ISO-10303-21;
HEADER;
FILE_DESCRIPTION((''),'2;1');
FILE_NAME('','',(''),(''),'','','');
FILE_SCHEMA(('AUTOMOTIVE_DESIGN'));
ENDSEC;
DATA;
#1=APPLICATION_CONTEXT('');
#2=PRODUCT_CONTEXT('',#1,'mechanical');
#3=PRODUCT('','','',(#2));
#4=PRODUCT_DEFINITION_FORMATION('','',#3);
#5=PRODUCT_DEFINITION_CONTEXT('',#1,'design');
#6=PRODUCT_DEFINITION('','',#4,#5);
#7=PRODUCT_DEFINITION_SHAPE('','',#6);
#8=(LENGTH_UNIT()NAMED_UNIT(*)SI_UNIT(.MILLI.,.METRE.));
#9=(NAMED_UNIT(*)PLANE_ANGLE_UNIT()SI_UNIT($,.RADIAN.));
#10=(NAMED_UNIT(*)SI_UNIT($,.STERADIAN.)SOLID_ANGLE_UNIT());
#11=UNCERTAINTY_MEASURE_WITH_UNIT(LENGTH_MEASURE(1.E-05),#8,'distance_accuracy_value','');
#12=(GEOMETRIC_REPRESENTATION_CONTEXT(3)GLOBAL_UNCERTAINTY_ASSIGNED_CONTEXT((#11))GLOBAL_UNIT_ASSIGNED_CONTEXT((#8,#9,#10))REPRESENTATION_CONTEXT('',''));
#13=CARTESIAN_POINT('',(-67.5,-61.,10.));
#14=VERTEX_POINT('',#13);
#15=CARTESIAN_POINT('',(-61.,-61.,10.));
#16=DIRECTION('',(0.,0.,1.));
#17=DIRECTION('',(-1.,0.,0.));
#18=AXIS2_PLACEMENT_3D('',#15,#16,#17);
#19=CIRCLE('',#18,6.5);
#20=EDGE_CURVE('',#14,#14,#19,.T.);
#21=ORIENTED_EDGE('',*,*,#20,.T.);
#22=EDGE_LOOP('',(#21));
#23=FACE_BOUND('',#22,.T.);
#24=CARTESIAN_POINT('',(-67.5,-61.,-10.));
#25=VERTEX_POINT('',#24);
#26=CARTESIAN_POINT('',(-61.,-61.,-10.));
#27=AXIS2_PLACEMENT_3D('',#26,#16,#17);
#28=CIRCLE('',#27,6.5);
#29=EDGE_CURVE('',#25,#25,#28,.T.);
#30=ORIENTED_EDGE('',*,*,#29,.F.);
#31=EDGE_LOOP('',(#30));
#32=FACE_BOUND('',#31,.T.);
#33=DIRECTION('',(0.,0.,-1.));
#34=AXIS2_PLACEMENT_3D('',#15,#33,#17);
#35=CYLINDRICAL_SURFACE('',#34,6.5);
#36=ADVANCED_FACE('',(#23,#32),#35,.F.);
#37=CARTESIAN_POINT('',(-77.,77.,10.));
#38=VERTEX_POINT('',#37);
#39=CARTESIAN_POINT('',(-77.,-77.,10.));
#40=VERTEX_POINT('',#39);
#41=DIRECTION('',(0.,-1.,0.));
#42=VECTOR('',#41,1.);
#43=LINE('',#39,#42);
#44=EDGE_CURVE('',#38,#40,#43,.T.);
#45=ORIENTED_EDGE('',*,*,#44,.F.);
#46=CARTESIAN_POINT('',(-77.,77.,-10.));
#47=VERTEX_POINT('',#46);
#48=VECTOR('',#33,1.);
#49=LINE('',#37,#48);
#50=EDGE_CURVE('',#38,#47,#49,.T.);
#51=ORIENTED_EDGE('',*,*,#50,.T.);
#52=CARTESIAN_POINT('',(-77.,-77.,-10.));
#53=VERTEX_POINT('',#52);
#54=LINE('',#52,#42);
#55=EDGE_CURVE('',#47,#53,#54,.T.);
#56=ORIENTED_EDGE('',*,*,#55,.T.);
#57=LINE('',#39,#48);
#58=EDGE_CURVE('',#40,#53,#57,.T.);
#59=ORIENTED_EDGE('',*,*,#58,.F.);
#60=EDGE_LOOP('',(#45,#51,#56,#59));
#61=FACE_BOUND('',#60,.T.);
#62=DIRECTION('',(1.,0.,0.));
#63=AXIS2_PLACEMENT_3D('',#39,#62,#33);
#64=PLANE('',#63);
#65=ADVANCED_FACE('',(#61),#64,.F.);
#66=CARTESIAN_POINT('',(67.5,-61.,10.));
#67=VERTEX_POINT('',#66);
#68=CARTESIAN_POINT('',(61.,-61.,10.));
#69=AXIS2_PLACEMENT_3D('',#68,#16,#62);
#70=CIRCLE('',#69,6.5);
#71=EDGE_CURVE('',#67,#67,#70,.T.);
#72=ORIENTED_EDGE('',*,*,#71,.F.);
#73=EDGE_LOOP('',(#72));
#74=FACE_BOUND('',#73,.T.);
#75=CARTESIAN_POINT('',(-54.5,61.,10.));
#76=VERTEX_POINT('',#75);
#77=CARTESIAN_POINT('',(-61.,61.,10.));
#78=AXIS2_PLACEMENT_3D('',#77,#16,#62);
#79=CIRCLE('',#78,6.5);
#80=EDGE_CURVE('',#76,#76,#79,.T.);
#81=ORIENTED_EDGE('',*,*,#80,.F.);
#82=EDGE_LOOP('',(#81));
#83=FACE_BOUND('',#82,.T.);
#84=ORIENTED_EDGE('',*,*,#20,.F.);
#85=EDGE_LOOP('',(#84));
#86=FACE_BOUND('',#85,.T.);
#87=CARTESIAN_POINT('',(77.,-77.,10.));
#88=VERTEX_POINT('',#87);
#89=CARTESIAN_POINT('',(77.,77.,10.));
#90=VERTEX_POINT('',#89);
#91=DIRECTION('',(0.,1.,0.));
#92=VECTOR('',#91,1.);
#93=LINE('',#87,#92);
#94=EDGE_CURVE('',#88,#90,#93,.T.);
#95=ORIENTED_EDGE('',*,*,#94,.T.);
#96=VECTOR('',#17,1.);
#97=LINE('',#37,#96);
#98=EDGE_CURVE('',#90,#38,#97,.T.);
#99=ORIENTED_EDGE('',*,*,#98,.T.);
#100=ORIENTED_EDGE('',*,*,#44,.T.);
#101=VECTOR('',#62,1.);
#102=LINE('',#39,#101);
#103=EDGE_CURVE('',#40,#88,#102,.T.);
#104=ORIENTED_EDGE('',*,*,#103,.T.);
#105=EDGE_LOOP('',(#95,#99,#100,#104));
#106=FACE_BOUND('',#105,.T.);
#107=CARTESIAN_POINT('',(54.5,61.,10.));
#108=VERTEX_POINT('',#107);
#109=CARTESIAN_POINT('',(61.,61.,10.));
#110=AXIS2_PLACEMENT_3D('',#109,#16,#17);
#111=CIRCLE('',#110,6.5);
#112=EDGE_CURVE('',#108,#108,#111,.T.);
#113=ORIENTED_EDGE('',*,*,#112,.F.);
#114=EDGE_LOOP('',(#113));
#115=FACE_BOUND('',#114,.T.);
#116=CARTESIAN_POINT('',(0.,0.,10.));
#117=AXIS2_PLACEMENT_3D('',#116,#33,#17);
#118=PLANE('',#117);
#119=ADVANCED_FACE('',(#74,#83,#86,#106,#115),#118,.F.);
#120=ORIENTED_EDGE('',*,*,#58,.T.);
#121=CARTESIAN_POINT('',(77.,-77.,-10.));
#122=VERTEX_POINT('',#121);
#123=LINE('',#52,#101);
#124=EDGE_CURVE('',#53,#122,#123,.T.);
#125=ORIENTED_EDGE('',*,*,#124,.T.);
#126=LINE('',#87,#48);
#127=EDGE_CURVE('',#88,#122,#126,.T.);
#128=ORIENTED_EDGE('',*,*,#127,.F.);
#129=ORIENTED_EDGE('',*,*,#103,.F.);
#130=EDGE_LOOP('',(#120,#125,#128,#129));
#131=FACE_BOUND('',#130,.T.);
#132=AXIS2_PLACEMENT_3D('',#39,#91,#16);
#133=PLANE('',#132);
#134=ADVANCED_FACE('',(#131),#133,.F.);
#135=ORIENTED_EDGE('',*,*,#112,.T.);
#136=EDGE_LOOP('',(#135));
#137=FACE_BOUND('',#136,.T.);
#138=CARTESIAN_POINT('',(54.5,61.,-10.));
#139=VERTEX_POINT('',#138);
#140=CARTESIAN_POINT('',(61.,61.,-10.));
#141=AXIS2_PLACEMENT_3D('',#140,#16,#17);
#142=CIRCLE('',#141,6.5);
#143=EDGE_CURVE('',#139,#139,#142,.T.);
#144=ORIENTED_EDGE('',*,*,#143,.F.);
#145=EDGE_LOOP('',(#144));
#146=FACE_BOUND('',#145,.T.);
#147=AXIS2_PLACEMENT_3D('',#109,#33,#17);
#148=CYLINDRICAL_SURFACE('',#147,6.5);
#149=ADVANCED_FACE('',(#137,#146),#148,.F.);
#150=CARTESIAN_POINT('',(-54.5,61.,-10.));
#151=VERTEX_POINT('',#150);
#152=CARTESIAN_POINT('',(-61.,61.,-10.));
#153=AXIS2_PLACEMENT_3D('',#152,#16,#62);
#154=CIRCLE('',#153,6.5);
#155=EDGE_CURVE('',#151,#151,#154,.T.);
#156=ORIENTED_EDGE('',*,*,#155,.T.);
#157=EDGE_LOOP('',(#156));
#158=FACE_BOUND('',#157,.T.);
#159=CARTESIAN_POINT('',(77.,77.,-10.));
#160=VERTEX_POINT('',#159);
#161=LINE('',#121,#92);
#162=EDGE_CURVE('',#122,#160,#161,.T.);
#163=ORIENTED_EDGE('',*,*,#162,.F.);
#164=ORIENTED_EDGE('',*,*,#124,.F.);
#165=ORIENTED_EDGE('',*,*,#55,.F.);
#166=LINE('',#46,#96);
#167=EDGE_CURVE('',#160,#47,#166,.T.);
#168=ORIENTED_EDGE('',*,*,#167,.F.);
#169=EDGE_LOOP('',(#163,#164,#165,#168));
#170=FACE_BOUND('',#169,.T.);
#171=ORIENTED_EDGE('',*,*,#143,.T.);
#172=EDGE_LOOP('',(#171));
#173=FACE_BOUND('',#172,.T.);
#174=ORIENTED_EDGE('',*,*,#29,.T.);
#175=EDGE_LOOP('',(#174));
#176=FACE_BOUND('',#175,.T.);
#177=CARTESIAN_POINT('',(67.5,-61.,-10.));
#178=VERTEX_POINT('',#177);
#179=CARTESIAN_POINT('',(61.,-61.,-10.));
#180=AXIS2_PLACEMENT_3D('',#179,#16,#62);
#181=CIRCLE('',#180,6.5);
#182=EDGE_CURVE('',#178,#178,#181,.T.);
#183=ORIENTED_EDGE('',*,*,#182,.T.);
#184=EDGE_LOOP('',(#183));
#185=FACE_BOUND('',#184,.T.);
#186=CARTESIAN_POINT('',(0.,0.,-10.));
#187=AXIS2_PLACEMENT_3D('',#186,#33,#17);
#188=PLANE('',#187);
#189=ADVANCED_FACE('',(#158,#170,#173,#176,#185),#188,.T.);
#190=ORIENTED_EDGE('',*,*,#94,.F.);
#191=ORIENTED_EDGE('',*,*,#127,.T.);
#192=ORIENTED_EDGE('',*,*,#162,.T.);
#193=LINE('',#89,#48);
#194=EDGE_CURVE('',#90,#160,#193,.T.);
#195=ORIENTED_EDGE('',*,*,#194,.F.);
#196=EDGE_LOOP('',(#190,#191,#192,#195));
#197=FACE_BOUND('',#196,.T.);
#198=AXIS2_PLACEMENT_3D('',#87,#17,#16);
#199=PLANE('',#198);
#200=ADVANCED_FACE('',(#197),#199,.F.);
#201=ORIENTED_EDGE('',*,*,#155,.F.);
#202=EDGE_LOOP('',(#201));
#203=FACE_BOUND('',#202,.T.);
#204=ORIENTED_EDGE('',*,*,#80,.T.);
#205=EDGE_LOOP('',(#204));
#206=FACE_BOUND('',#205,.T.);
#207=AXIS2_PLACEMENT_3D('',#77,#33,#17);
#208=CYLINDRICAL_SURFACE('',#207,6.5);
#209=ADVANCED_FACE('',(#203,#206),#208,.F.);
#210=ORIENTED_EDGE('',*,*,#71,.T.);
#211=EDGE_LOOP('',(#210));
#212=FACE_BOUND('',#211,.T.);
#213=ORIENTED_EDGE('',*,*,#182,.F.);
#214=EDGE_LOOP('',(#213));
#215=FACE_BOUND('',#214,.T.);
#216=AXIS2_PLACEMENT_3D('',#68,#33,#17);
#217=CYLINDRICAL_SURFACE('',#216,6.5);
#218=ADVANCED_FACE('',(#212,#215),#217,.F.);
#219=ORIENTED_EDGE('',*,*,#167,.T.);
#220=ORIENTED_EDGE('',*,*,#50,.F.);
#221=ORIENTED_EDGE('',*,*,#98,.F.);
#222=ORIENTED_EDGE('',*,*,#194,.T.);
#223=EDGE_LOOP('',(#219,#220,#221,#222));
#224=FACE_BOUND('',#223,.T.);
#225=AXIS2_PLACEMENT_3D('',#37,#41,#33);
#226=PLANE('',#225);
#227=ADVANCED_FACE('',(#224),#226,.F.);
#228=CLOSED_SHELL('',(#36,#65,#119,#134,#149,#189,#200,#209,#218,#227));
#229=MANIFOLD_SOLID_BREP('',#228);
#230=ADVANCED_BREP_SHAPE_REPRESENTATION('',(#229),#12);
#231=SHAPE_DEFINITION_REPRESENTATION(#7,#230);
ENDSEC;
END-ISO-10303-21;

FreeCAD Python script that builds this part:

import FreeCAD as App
import Part
import Sketcher

V = App.Vector

doc = App.newDocument("Part")
body = doc.addObject("PartDesign::Body", "Body")

# Sketch on XY plane
sketch1 = body.newObject("Sketcher::SketchObject", "Sketch")
sketch1.AttachmentSupport = (doc.getObject("XY_Plane"), [""])
sketch1.MapMode = "FlatFace"
sketch1.addGeometry([
    Part.LineSegment(V(-77, 77, 0), V(-77, -77, 0)),  # 0
    Part.LineSegment(V(-77, -77, 0), V(77, -77, 0)),  # 1
    Part.LineSegment(V(77, -77, 0), V(77, 77, 0)),  # 2
    Part.LineSegment(V(77, 77, 0), V(-77, 77, 0)),  # 3
    Part.Circle(V(-61, -61, 0), V(0, 0, 1), 6.5),  # 4
    Part.Circle(V(61, -61, 0), V(0, 0, 1), 6.5),  # 5
    Part.Circle(V(-61, 61, 0), V(0, 0, 1), 6.5),  # 6
    Part.Circle(V(61, 61, 0), V(0, 0, 1), 6.5),  # 7
], False)
sketch1.addConstraint([
    Sketcher.Constraint("Coincident", 0, 2, 1, 1),
    Sketcher.Constraint("Coincident", 1, 2, 2, 1),
    Sketcher.Constraint("Coincident", 2, 2, 3, 1),
    Sketcher.Constraint("Coincident", 3, 2, 0, 1),
    Sketcher.Constraint("Vertical", 0),
    Sketcher.Constraint("Horizontal", 1),
    Sketcher.Constraint("Vertical", 2),
    Sketcher.Constraint("Horizontal", 3),
    Sketcher.Constraint("Equal", 4, 5),
    Sketcher.Constraint("Equal", 5, 6),
    Sketcher.Constraint("Equal", 6, 7),
    Sketcher.Constraint("Symmetric", 5, 3, 6, 3, -1, 1),
    Sketcher.Constraint("Symmetric", 4, 3, 7, 3, -1, 1),
    Sketcher.Constraint("Symmetric", 0, 2, 2, 2, -1, 1),
    Sketcher.Constraint("Symmetric", 4, 3, 5, 3, -2),
    Sketcher.Constraint("Equal", 3, 0),
    Sketcher.Constraint("Diameter", 4, 13.0),
    Sketcher.Constraint("DistanceX", 1, 1, 1, 2, 154.0),
    Sketcher.Constraint("DistanceX", 4, 3, -1, 1, 61.0),
    Sketcher.Constraint("DistanceY", 4, 3, -1, 1, 61.0),
])
pad1 = body.newObject("PartDesign::Pad", "Pad")
pad1.Profile = sketch1
pad1.Length = 20
pad1.Midplane = True

doc.recompute()
